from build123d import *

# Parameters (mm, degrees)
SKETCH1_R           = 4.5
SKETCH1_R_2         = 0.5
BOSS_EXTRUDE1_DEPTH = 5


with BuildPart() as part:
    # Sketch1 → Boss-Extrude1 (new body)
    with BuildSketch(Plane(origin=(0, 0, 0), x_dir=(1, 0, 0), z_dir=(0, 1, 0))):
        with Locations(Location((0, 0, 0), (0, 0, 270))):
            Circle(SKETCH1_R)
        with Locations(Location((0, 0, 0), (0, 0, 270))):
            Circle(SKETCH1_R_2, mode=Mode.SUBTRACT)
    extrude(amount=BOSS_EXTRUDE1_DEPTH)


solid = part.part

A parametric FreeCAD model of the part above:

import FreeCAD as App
import Part
import Sketcher

doc = App.newDocument("Part")
body = doc.addObject("PartDesign::Body", "Body")

sketch1 = body.newObject("Sketcher::SketchObject", "Sketch")
sketch1.AttachmentSupport = (doc.getObject("XZ_Plane"), [""])
sketch1.MapMode = "FlatFace"
sketch1.addGeometry([
    Part.Circle(App.Vector(0, 0, 0), App.Vector(0, 0, 1), 4.5),
    Part.Circle(App.Vector(0, 0, 0), App.Vector(0, 0, 1), 0.5),
], False)
sketch1.addConstraint([
    Sketcher.Constraint("Coincident", 0, 3, -1, 1),
    Sketcher.Constraint("Coincident", 1, 3, -1, 1),
    Sketcher.Constraint("Diameter", 0, 9.0),
    Sketcher.Constraint("Diameter", 1, 1.0),
])
pad1 = body.newObject("PartDesign::Pad", "Pad")
pad1.Profile = sketch1
pad1.Length = 5
pad1.Reversed = True

doc.recompute()
